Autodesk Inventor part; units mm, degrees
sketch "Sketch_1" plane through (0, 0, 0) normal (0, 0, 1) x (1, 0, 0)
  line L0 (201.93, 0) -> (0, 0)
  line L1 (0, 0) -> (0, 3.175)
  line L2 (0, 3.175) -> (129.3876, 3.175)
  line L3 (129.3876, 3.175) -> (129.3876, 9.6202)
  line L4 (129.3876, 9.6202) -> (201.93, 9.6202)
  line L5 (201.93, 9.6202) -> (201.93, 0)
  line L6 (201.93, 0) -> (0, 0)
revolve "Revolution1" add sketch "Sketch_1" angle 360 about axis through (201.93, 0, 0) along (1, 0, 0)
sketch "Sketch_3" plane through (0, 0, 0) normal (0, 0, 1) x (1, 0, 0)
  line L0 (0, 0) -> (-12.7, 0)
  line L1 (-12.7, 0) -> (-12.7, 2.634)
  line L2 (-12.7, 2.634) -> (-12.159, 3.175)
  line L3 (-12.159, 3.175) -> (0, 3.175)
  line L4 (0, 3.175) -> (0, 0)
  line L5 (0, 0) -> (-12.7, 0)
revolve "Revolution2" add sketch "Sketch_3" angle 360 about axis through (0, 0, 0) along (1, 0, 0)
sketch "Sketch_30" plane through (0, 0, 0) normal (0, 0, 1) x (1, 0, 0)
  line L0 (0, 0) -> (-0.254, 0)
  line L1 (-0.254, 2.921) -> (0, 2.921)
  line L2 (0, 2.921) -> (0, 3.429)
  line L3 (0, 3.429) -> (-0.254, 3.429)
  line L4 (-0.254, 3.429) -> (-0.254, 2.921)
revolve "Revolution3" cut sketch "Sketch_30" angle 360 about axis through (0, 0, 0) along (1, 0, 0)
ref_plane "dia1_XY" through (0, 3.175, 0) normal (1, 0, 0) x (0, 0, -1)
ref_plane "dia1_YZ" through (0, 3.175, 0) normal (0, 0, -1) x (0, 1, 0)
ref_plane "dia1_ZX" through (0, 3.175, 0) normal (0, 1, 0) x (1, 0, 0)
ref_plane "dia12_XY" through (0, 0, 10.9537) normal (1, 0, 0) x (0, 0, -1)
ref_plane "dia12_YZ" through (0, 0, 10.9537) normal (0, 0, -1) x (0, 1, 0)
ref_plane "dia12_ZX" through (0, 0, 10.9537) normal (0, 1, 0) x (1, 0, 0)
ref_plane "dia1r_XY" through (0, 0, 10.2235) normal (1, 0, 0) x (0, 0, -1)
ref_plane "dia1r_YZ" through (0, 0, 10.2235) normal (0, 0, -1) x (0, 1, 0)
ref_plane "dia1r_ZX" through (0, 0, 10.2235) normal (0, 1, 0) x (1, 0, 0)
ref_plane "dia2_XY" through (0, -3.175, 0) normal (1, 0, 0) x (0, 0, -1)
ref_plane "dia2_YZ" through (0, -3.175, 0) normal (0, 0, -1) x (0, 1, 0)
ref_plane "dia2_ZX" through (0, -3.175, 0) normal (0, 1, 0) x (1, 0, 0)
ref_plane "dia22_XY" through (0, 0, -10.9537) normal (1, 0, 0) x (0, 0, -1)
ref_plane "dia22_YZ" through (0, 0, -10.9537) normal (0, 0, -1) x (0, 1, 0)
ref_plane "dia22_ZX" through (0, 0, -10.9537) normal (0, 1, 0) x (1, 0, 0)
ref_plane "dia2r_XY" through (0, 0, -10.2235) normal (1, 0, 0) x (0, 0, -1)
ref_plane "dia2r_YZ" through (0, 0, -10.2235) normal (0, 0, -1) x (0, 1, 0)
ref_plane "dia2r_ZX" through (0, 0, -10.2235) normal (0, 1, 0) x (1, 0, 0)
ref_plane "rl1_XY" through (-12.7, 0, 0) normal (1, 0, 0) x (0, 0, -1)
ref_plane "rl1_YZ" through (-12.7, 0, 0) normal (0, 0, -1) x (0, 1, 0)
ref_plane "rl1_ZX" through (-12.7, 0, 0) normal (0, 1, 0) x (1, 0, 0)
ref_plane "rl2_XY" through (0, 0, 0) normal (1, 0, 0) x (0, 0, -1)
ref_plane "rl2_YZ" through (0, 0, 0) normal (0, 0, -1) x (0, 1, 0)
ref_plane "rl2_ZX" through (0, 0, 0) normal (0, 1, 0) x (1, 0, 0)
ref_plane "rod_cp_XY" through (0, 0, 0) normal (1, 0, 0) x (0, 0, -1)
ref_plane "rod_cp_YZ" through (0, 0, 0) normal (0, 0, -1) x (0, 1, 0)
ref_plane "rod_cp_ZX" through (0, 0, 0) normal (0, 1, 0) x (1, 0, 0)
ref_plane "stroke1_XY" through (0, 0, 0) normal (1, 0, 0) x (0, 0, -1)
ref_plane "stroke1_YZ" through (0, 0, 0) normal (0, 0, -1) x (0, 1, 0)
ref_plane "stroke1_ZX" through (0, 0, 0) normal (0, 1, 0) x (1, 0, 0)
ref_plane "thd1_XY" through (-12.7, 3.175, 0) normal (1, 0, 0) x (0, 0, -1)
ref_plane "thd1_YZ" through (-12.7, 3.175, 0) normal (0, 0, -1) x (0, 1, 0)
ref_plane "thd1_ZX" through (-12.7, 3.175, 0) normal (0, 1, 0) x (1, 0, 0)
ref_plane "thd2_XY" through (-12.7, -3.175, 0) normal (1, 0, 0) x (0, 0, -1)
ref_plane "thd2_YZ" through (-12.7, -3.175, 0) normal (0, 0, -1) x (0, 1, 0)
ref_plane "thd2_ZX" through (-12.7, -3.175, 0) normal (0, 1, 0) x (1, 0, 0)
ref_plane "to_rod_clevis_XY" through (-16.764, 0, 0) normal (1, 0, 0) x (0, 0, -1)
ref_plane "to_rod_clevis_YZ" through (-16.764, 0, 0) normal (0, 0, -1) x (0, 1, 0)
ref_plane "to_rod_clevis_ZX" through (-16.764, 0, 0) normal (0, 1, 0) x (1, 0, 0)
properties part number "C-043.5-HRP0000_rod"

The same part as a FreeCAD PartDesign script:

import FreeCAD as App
import Part
import Sketcher
Q = App.Units.Quantity

doc = App.newDocument("Part")
body = doc.addObject("PartDesign::Body", "Body")

# Sketch on XY plane
sketch1 = body.newObject("Sketcher::SketchObject", "Sketch")
sketch1.AttachmentSupport = (doc.getObject("XY_Plane"), [""])
sketch1.MapMode = "FlatFace"
sketch1.addGeometry([
    Part.LineSegment(App.Vector(0, 0, 0), App.Vector(201.9, 0, 0)),  # 0
    Part.LineSegment(App.Vector(201.9, 0, 0), App.Vector(201.9, 9.6, 0)),  # 1
    Part.LineSegment(App.Vector(201.9, 9.6, 0), App.Vector(129.4, 9.6, 0)),  # 2
    Part.LineSegment(App.Vector(129.4, 9.6, 0), App.Vector(129.4, 3.2, 0)),  # 3
    Part.LineSegment(App.Vector(129.4, 3.2, 0), App.Vector(0, 3.2, 0)),  # 4
    Part.LineSegment(App.Vector(0, 3.2, 0), App.Vector(0, 0, 0)),  # 5
], False)
sketch1.addConstraint([
    Sketcher.Constraint("Coincident", 0, 2, 1, 1),
    Sketcher.Constraint("Coincident", 1, 2, 2, 1),
    Sketcher.Constraint("Coincident", 2, 2, 3, 1),
    Sketcher.Constraint("Coincident", 3, 2, 4, 1),
    Sketcher.Constraint("Coincident", 4, 2, 5, 1),
    Sketcher.Constraint("Coincident", 5, 2, 0, 1),
    Sketcher.Constraint("Horizontal", 0),
    Sketcher.Constraint("Vertical", 1),
    Sketcher.Constraint("Horizontal", 2),
    Sketcher.Constraint("Vertical", 3),
    Sketcher.Constraint("Horizontal", 4),
    Sketcher.Constraint("Vertical", 5),
    Sketcher.Constraint("Coincident", 5, 2, -1, 1),
    Sketcher.Constraint("DistanceX", 0, 1, 0, 2, Q("7.95 in")),
    Sketcher.Constraint("DistanceX", 2, 2, 2, 1, Q("2.856 in")),
    Sketcher.Constraint("DistanceY", 5, 2, 5, 1, Q("0.125 in")),
    Sketcher.Constraint("DistanceY", 1, 1, 1, 2, Q("9.6202 mm")),
])
revolution = body.newObject("PartDesign::Revolution", "Revolution")
revolution.Profile = sketch1
revolution.ReferenceAxis = (sketch1, ["H_Axis"])
revolution.Angle = 360

# Sketch on XY plane
sketch2 = body.newObject("Sketcher::SketchObject", "Sketch001")
sketch2.AttachmentSupport = (doc.getObject("XY_Plane"), [""])
sketch2.MapMode = "FlatFace"
sketch2.addGeometry([
    Part.LineSegment(App.Vector(-12.7, 0, 0), App.Vector(0, 0, 0)),  # 0
    Part.LineSegment(App.Vector(0, 0, 0), App.Vector(0, 3.2, 0)),  # 1
    Part.LineSegment(App.Vector(0, 3.2, 0), App.Vector(-12.2, 3.2, 0)),  # 2
    Part.LineSegment(App.Vector(-12.2, 3.2, 0), App.Vector(-12.7, 2.6, 0)),  # 3
    Part.LineSegment(App.Vector(-12.7, 2.6, 0), App.Vector(-12.7, 0, 0)),  # 4
], False)
sketch2.addConstraint([
    Sketcher.Constraint("Coincident", 0, 2, 1, 1),
    Sketcher.Constraint("Coincident", 1, 2, 2, 1),
    Sketcher.Constraint("Coincident", 2, 2, 3, 1),
    Sketcher.Constraint("Coincident", 3, 2, 4, 1),
    Sketcher.Constraint("Coincident", 4, 2, 0, 1),
    Sketcher.Constraint("Horizontal", 0),
    Sketcher.Constraint("Vertical", 1),
    Sketcher.Constraint("Horizontal", 2),
    Sketcher.Constraint("Vertical", 4),
    Sketcher.Constraint("Coincident", 0, 2, -1, 1),
    Sketcher.Constraint("DistanceX", 0, 1, 0, 2, Q("0.5 in")),
    Sketcher.Constraint("Angle", 3, Q("-135 deg")),
    Sketcher.Constraint("DistanceY", 1, 1, 1, 2, Q("0.125 in")),
    Sketcher.Constraint("DistanceX", 2, 2, 2, 1, Q("0.4787 in")),
])
revolution2 = body.newObject("PartDesign::Revolution", "Revolution001")
revolution2.Profile = sketch2
revolution2.ReferenceAxis = (sketch2, ["H_Axis"])
revolution2.Angle = 360

# Sketch on XY plane
sketch3 = body.newObject("Sketcher::SketchObject", "Sketch002")
sketch3.AttachmentSupport = (doc.getObject("XY_Plane"), [""])
sketch3.MapMode = "FlatFace"
sketch3.addGeometry([
    Part.LineSegment(App.Vector(-0.25, 3.43, 0), App.Vector(-0.25, 2.92, 0)),
    Part.LineSegment(App.Vector(-0.25, 2.92, 0), App.Vector(0, 2.92, 0)),
    Part.LineSegment(App.Vector(0, 2.92, 0), App.Vector(0, 3.43, 0)),
    Part.LineSegment(App.Vector(0, 3.43, 0), App.Vector(-0.25, 3.43, 0)),
], False)
sketch3.addConstraint([
    Sketcher.Constraint("Coincident", 0, 2, 1, 1),
    Sketcher.Constraint("Coincident", 1, 2, 2, 1),
    Sketcher.Constraint("Coincident", 2, 2, 3, 1),
    Sketcher.Constraint("Coincident", 3, 2, 0, 1),
    Sketcher.Constraint("Vertical", 0),
    Sketcher.Constraint("Horizontal", 1),
    Sketcher.Constraint("Vertical", 2),
    Sketcher.Constraint("Horizontal", 3),
    Sketcher.Constraint("PointOnObject", 1, 2, -2),
    Sketcher.Constraint("DistanceX", 1, 1, 1, 2, Q("0.01 in")),
    Sketcher.Constraint("DistanceY", 0, 2, 0, 1, Q("0.02 in")),
    Sketcher.Constraint("DistanceY", -1, 1, 0, 2, Q("0.115 in")),
])
groove = body.newObject("PartDesign::Groove", "Groove")
groove.Profile = sketch3
groove.ReferenceAxis = (sketch3, ["H_Axis"])
groove.Angle = 360

doc.recompute()
